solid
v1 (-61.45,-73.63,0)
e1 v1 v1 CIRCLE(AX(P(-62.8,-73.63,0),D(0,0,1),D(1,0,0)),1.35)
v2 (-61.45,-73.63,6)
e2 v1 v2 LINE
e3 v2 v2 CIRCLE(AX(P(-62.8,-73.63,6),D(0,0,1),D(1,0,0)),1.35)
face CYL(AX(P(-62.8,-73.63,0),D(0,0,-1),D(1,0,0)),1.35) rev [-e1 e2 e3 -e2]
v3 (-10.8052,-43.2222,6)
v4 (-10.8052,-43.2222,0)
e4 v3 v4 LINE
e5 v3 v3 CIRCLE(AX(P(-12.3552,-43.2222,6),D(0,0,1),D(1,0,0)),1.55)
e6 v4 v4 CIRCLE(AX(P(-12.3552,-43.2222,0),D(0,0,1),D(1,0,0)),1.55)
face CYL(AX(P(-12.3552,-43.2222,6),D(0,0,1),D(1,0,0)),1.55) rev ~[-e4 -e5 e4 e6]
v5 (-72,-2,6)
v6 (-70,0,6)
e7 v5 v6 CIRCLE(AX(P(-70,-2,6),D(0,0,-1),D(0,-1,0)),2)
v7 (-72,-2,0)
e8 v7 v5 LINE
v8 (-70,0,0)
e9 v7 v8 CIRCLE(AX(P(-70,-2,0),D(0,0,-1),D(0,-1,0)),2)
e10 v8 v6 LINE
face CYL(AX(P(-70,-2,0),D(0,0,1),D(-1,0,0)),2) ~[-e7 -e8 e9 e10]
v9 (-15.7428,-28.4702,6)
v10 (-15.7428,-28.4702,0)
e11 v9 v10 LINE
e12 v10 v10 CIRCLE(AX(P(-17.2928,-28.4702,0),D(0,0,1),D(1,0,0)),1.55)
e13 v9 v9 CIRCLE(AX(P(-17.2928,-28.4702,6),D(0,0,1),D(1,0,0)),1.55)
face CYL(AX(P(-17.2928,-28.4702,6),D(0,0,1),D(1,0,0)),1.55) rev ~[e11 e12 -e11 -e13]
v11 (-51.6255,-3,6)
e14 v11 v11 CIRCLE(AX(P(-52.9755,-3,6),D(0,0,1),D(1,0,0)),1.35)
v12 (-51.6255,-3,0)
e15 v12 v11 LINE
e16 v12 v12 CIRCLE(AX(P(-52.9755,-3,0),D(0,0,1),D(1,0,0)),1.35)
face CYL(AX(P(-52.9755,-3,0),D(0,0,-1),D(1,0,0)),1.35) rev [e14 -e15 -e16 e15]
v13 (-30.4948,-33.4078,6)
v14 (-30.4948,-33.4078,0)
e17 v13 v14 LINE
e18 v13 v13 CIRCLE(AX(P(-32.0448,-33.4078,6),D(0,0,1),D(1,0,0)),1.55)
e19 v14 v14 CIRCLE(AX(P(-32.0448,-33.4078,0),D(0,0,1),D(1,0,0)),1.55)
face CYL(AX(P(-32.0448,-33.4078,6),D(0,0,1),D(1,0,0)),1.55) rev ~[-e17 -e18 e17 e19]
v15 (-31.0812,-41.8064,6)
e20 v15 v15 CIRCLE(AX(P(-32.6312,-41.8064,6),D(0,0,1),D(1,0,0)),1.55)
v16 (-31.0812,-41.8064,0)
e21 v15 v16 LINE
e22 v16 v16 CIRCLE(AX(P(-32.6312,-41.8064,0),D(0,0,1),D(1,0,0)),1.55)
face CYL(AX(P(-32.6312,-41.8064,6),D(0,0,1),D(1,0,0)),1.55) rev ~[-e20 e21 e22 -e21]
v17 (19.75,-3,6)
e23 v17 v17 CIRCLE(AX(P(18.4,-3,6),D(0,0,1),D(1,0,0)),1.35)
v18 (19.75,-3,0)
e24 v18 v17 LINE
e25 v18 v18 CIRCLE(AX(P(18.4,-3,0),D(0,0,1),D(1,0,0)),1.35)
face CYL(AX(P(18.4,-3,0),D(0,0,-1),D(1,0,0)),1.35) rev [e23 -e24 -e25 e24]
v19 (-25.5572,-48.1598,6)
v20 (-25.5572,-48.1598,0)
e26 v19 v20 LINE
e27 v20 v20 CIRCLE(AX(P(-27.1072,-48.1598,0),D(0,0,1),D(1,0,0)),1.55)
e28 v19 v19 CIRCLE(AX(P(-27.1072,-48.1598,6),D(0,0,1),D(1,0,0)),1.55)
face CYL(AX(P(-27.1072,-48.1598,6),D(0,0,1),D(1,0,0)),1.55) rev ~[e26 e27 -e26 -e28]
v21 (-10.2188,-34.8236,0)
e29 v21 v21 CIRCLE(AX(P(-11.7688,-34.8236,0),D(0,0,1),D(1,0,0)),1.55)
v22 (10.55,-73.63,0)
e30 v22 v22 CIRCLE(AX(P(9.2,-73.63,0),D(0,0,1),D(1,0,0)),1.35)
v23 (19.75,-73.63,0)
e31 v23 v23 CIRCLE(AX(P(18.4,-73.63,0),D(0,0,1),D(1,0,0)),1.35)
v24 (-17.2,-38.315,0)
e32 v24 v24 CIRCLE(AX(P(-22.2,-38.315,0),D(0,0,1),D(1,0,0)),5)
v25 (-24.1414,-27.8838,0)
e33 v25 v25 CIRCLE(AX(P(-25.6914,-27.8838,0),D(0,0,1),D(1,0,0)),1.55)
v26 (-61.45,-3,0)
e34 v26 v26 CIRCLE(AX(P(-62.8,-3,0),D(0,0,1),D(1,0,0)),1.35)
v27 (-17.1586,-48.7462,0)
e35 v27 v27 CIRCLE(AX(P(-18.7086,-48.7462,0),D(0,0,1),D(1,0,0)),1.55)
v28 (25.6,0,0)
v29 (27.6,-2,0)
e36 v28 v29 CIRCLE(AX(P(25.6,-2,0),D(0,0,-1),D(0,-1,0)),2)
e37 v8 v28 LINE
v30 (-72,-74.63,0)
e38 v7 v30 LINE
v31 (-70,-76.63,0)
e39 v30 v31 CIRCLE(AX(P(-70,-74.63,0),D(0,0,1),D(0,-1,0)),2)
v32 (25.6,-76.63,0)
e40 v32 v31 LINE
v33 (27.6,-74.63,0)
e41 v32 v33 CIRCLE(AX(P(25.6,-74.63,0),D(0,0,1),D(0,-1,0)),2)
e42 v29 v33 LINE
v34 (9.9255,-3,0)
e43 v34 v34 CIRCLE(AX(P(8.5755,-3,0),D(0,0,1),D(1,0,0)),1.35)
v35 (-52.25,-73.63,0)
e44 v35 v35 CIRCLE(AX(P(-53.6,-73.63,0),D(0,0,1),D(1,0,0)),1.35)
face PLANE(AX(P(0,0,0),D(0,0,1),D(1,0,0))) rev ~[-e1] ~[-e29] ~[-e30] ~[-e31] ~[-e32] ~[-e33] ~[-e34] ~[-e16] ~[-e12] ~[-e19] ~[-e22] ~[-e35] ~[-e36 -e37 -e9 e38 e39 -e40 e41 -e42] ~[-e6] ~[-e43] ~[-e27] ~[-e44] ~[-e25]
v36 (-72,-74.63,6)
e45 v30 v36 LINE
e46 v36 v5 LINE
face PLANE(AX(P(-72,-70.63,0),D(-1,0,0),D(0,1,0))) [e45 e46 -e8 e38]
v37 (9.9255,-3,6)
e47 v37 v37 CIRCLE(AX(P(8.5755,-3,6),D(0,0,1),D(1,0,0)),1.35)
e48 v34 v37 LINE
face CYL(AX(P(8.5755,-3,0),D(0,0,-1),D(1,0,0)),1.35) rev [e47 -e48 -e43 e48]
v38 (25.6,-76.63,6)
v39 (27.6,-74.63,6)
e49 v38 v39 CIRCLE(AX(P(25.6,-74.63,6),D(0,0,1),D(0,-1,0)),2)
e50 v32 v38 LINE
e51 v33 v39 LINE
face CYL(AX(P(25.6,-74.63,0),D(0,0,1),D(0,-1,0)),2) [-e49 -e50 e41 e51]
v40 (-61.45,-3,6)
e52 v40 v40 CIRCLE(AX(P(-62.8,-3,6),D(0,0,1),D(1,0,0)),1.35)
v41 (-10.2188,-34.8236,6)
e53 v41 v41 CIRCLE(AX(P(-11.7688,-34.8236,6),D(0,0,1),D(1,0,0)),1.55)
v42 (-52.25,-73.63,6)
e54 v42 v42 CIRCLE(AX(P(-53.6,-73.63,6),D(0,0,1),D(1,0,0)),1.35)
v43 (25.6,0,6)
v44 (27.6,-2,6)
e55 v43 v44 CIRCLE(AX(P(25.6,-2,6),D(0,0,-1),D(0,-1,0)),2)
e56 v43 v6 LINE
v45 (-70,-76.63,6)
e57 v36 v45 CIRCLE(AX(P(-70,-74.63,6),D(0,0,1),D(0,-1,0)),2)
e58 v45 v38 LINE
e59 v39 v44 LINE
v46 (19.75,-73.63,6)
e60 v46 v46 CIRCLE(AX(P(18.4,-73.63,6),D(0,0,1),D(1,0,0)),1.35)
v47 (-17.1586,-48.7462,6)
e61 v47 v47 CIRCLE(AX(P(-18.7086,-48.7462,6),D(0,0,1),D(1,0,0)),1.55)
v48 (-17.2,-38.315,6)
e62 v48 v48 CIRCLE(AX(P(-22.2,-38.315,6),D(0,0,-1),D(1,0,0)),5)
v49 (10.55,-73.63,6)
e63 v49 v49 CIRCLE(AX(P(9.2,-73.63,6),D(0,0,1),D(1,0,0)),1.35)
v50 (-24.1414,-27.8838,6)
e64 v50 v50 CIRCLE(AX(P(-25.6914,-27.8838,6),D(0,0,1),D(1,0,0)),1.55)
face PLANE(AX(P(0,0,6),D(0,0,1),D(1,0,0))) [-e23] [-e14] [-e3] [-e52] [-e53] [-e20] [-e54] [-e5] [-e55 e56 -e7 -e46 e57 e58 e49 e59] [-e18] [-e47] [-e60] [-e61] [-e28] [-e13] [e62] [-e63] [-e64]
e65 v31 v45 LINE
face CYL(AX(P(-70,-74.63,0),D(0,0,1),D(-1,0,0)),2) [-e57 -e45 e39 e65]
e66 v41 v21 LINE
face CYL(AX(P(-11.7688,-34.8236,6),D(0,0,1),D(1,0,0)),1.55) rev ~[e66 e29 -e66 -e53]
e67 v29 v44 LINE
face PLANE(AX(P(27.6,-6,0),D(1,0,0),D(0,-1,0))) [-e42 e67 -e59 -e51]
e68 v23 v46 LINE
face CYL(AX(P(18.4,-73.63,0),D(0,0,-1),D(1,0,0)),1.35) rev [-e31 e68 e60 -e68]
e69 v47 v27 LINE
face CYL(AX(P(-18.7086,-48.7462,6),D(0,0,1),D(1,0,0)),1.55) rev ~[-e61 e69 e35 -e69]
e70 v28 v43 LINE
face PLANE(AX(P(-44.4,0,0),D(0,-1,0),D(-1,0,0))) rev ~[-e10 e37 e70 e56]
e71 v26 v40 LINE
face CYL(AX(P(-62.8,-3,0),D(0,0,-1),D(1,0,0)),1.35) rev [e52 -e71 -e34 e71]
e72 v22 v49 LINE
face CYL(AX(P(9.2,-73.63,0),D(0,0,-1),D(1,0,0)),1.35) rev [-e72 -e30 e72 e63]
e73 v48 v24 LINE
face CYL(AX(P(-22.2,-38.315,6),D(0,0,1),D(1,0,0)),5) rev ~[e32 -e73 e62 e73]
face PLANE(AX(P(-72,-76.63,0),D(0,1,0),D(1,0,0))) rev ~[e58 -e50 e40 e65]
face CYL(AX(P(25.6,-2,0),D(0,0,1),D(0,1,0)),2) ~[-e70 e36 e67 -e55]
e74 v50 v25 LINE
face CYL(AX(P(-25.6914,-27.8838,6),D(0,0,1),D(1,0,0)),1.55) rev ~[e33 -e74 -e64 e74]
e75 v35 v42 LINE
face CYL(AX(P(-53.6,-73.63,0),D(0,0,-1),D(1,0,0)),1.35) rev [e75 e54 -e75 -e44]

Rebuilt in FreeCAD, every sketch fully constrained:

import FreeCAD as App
import Part
import Sketcher

V = App.Vector
Q = App.Units.Quantity


def edges_at(feature, points):
    """Names of the edges that pass closest to the given points."""
    edges = feature.Shape.Edges
    near = lambda p: min(range(len(edges)), key=lambda i: edges[i].distToShape(Part.Vertex(*p))[0])
    return sorted({f"Edge{near(p) + 1}" for p in points})

doc = App.newDocument("Part")
body = doc.addObject("PartDesign::Body", "Body")

# Sketch on XY plane
sketch1 = body.newObject("Sketcher::SketchObject", "Sketch")
sketch1.AttachmentSupport = (doc.getObject("XY_Plane"), [""])
sketch1.MapMode = "FlatFace"
sketch1.addGeometry(Part.LineSegment(V(-72, -76.6, 0), V(27.6, -76.6, 0)), False)
sketch1.addGeometry(Part.LineSegment(V(27.6, -76.6, 0), V(27.6, 0, 0)), False)
sketch1.addGeometry(Part.LineSegment(V(27.6, 0, 0), V(-72, 0, 0)), False)
sketch1.addGeometry(Part.LineSegment(V(-72, 0, 0), V(-72, -76.6, 0)), False)
sketch1.addGeometry(Part.Circle(V(-62.8, -3, 0), V(0, 0, 1), 1.4), False)
sketch1.addGeometry(Part.Circle(V(-53, -3, 0), V(0, 0, 1), 1.4), False)
sketch1.addGeometry(Part.Circle(V(8.6, -3, 0), V(0, 0, 1), 1.4), False)
sketch1.addGeometry(Part.Circle(V(18.4, -3, 0), V(0, 0, 1), 1.4), False)
sketch1.addGeometry(Part.Circle(V(9.2, -73.6, 0), V(0, 0, 1), 1.4), False)
sketch1.addGeometry(Part.Circle(V(18.4, -73.6, 0), V(0, 0, 1), 1.4), False)
sketch1.addGeometry(Part.Circle(V(-62.8, -73.6, 0), V(0, 0, 1), 1.4), False)
sketch1.addGeometry(Part.Circle(V(-53.6, -73.6, 0), V(0, 0, 1), 1.4), False)
sketch1.addConstraint(Sketcher.Constraint("Coincident", 0, 2, 1, 1))
sketch1.addConstraint(Sketcher.Constraint("Coincident", 1, 2, 2, 1))
sketch1.addConstraint(Sketcher.Constraint("Coincident", 2, 2, 3, 1))
sketch1.addConstraint(Sketcher.Constraint("Coincident", 3, 2, 0, 1))
sketch1.addConstraint(Sketcher.Constraint("Horizontal", 0))
sketch1.addConstraint(Sketcher.Constraint("Vertical", 1))
sketch1.addConstraint(Sketcher.Constraint("Horizontal", 2))
sketch1.addConstraint(Sketcher.Constraint("Vertical", 3))
sketch1.addConstraint(Sketcher.Constraint("Equal", 4, 5))
sketch1.addConstraint(Sketcher.Constraint("Equal", 5, 6))
sketch1.addConstraint(Sketcher.Constraint("Equal", 6, 7))
sketch1.addConstraint(Sketcher.Constraint("Equal", 7, 8))
sketch1.addConstraint(Sketcher.Constraint("Equal", 8, 9))
sketch1.addConstraint(Sketcher.Constraint("Equal", 9, 10))
sketch1.addConstraint(Sketcher.Constraint("Equal", 10, 11))
sketch1.addConstraint(Sketcher.Constraint("PointOnObject", 1, 2, -1))
sketch1.addConstraint(Sketcher.Constraint("Horizontal", 4, 3, 5, 3))
sketch1.addConstraint(Sketcher.Constraint("Horizontal", 5, 3, 6, 3))
sketch1.addConstraint(Sketcher.Constraint("Horizontal", 6, 3, 7, 3))
sketch1.addConstraint(Sketcher.Constraint("Horizontal", 8, 3, 9, 3))
sketch1.addConstraint(Sketcher.Constraint("Horizontal", 9, 3, 10, 3))
sketch1.addConstraint(Sketcher.Constraint("Horizontal", 10, 3, 11, 3))
sketch1.addConstraint(Sketcher.Constraint("Vertical", 7, 3, 9, 3))
sketch1.addConstraint(Sketcher.Constraint("Vertical", 4, 3, 10, 3))
sketch1.addConstraint(Sketcher.Constraint("Diameter", 4, Q("2.7 mm")))
sketch1.addConstraint(Sketcher.Constraint("DistanceX", 0, 1, 0, 2, Q("99.6 mm")))
sketch1.addConstraint(Sketcher.Constraint("DistanceY", 4, 3, -1, 1, Q("3 mm")))
sketch1.addConstraint(Sketcher.Constraint("DistanceX", 2, 2, -1, 1, Q("72 mm")))
sketch1.addConstraint(Sketcher.Constraint("DistanceX", 4, 3, 8, 3, Q("72 mm")))
sketch1.addConstraint(Sketcher.Constraint("DistanceX", 11, 3, 9, 3, Q("72 mm")))
sketch1.addConstraint(Sketcher.Constraint("DistanceY", 0, 2, 9, 3, Q("3 mm")))
sketch1.addConstraint(Sketcher.Constraint("DistanceY", 1, 1, 1, 2, Q("76.63 mm")))
sketch1.addConstraint(Sketcher.Constraint("DistanceX", 4, 3, -1, 1, Q("62.8 mm")))
sketch1.addConstraint(Sketcher.Constraint("DistanceX", -1, 1, 7, 3, Q("18.4 mm")))
sketch1.addConstraint(Sketcher.Constraint("DistanceX", 5, 3, 6, 3, Q("61.551 mm")))
sketch1.addConstraint(Sketcher.Constraint("DistanceX", 5, 3, -1, 1, Q("52.9755 mm")))
pad1 = body.newObject("PartDesign::Pad", "Pad")
pad1.Profile = sketch1
pad1.Length = 6

# Sketch on XY plane
sketch2 = body.newObject("Sketcher::SketchObject", "Sketch001")
sketch2.AttachmentSupport = (doc.getObject("XY_Plane"), [""])
sketch2.MapMode = "FlatFace"
sketch2.AttachmentOffset = App.Placement(V(0, 0, 6), App.Rotation())
sketch2.addGeometry(Part.Circle(V(-22, -38, 0), V(0, 0, 1), 5), False)
sketch2.addConstraint(Sketcher.Constraint("Diameter", 0, Q("10 mm")))
sketch2.addConstraint(Sketcher.Constraint("DistanceX", 0, 3, -1, 1, Q("22.2 mm")))
sketch2.addConstraint(Sketcher.Constraint("DistanceY", 0, 3, -1, 1, Q("38.315 mm")))
pocket1 = body.newObject("PartDesign::Pocket", "Pocket")
pocket1.Profile = sketch2
pocket1.Length = 6

# Sketch on XY plane
sketch3 = body.newObject("Sketcher::SketchObject", "Sketch002")
sketch3.AttachmentSupport = (doc.getObject("XY_Plane"), [""])
sketch3.MapMode = "FlatFace"
sketch3.AttachmentOffset = App.Placement(V(0, 0, 6), App.Rotation())
sketch3.addGeometry(Part.Circle(V(-25.7, -27.9, 0), V(0, 0, 1), 1.6), False)
sketch3.addGeometry(Part.Circle(V(-32, -33.4, 0), V(0, 0, 1), 1.6), False)
sketch3.addGeometry(Part.Circle(V(-17.3, -28.5, 0), V(0, 0, 1), 1.6), False)
sketch3.addGeometry(Part.Circle(V(-11.8, -34.8, 0), V(0, 0, 1), 1.6), False)
sketch3.addGeometry(Part.Circle(V(-12.4, -43.2, 0), V(0, 0, 1), 1.6), False)
sketch3.addGeometry(Part.Circle(V(-18.7, -48.7, 0), V(0, 0, 1), 1.6), False)
sketch3.addGeometry(Part.Circle(V(-27.1, -48.2, 0), V(0, 0, 1), 1.6), False)
sketch3.addGeometry(Part.Circle(V(-32.6, -41.8, 0), V(0, 0, 1), 1.6), False)
sketch3.addConstraint(Sketcher.Constraint("Equal", 0, 1))
sketch3.addConstraint(Sketcher.Constraint("Equal", 1, 2))
sketch3.addConstraint(Sketcher.Constraint("Equal", 2, 3))
sketch3.addConstraint(Sketcher.Constraint("Equal", 3, 4))
sketch3.addConstraint(Sketcher.Constraint("Equal", 4, 5))
sketch3.addConstraint(Sketcher.Constraint("Equal", 5, 6))
sketch3.addConstraint(Sketcher.Constraint("Equal", 6, 7))
sketch3.addConstraint(Sketcher.Constraint("Diameter", 0, Q("3.1 mm")))
sketch3.addConstraint(Sketcher.Constraint("DistanceY", 1, 3, 0, 3, Q("5.524 mm")))
sketch3.addConstraint(Sketcher.Constraint("DistanceX", 1, 3, 2, 3, Q("14.752 mm")))
sketch3.addConstraint(Sketcher.Constraint("DistanceX", 2, 3, 3, 3, Q("5.524 mm")))
sketch3.addConstraint(Sketcher.Constraint("DistanceY", 4, 3, 2, 3, Q("14.752 mm")))
sketch3.addConstraint(Sketcher.Constraint("DistanceY", 5, 3, 4, 3, Q("5.524 mm")))
sketch3.addConstraint(Sketcher.Constraint("DistanceY", 6, 3, 1, 3, Q("14.752 mm")))
sketch3.addConstraint(Sketcher.Constraint("DistanceX", 6, 3, 4, 3, Q("14.752 mm")))
sketch3.addConstraint(Sketcher.Constraint("DistanceX", 7, 3, 6, 3, Q("5.524 mm")))
sketch3.addConstraint(Sketcher.Constraint("DistanceX", 0, 3, -1, 1, Q("25.6914 mm")))
sketch3.addConstraint(Sketcher.Constraint("DistanceY", 0, 3, -1, 1, Q("27.8838 mm")))
sketch3.addConstraint(Sketcher.Constraint("DistanceX", 1, 3, -1, 1, Q("32.0448 mm")))
sketch3.addConstraint(Sketcher.Constraint("DistanceY", 2, 3, -1, 1, Q("28.4702 mm")))
sketch3.addConstraint(Sketcher.Constraint("DistanceY", 3, 3, -1, 1, Q("34.8236 mm")))
sketch3.addConstraint(Sketcher.Constraint("DistanceX", 4, 3, -1, 1, Q("12.3552 mm")))
sketch3.addConstraint(Sketcher.Constraint("DistanceX", 5, 3, -1, 1, Q("18.7086 mm")))
sketch3.addConstraint(Sketcher.Constraint("DistanceY", 7, 3, -1, 1, Q("41.8064 mm")))
pocket2 = body.newObject("PartDesign::Pocket", "Pocket001")
pocket2.Profile = sketch3
pocket2.Length = 6
doc.recompute()

fillet = body.newObject("PartDesign::Fillet", "Fillet")
fillet.Base = (pocket2, edges_at(pocket2, [
    (-72, 0, 3),
    (27.6, 0, 3),
    (27.6, -76.63, 3),
    (-72, -76.63, 3),
]))
fillet.Radius = 2

doc.recompute()
